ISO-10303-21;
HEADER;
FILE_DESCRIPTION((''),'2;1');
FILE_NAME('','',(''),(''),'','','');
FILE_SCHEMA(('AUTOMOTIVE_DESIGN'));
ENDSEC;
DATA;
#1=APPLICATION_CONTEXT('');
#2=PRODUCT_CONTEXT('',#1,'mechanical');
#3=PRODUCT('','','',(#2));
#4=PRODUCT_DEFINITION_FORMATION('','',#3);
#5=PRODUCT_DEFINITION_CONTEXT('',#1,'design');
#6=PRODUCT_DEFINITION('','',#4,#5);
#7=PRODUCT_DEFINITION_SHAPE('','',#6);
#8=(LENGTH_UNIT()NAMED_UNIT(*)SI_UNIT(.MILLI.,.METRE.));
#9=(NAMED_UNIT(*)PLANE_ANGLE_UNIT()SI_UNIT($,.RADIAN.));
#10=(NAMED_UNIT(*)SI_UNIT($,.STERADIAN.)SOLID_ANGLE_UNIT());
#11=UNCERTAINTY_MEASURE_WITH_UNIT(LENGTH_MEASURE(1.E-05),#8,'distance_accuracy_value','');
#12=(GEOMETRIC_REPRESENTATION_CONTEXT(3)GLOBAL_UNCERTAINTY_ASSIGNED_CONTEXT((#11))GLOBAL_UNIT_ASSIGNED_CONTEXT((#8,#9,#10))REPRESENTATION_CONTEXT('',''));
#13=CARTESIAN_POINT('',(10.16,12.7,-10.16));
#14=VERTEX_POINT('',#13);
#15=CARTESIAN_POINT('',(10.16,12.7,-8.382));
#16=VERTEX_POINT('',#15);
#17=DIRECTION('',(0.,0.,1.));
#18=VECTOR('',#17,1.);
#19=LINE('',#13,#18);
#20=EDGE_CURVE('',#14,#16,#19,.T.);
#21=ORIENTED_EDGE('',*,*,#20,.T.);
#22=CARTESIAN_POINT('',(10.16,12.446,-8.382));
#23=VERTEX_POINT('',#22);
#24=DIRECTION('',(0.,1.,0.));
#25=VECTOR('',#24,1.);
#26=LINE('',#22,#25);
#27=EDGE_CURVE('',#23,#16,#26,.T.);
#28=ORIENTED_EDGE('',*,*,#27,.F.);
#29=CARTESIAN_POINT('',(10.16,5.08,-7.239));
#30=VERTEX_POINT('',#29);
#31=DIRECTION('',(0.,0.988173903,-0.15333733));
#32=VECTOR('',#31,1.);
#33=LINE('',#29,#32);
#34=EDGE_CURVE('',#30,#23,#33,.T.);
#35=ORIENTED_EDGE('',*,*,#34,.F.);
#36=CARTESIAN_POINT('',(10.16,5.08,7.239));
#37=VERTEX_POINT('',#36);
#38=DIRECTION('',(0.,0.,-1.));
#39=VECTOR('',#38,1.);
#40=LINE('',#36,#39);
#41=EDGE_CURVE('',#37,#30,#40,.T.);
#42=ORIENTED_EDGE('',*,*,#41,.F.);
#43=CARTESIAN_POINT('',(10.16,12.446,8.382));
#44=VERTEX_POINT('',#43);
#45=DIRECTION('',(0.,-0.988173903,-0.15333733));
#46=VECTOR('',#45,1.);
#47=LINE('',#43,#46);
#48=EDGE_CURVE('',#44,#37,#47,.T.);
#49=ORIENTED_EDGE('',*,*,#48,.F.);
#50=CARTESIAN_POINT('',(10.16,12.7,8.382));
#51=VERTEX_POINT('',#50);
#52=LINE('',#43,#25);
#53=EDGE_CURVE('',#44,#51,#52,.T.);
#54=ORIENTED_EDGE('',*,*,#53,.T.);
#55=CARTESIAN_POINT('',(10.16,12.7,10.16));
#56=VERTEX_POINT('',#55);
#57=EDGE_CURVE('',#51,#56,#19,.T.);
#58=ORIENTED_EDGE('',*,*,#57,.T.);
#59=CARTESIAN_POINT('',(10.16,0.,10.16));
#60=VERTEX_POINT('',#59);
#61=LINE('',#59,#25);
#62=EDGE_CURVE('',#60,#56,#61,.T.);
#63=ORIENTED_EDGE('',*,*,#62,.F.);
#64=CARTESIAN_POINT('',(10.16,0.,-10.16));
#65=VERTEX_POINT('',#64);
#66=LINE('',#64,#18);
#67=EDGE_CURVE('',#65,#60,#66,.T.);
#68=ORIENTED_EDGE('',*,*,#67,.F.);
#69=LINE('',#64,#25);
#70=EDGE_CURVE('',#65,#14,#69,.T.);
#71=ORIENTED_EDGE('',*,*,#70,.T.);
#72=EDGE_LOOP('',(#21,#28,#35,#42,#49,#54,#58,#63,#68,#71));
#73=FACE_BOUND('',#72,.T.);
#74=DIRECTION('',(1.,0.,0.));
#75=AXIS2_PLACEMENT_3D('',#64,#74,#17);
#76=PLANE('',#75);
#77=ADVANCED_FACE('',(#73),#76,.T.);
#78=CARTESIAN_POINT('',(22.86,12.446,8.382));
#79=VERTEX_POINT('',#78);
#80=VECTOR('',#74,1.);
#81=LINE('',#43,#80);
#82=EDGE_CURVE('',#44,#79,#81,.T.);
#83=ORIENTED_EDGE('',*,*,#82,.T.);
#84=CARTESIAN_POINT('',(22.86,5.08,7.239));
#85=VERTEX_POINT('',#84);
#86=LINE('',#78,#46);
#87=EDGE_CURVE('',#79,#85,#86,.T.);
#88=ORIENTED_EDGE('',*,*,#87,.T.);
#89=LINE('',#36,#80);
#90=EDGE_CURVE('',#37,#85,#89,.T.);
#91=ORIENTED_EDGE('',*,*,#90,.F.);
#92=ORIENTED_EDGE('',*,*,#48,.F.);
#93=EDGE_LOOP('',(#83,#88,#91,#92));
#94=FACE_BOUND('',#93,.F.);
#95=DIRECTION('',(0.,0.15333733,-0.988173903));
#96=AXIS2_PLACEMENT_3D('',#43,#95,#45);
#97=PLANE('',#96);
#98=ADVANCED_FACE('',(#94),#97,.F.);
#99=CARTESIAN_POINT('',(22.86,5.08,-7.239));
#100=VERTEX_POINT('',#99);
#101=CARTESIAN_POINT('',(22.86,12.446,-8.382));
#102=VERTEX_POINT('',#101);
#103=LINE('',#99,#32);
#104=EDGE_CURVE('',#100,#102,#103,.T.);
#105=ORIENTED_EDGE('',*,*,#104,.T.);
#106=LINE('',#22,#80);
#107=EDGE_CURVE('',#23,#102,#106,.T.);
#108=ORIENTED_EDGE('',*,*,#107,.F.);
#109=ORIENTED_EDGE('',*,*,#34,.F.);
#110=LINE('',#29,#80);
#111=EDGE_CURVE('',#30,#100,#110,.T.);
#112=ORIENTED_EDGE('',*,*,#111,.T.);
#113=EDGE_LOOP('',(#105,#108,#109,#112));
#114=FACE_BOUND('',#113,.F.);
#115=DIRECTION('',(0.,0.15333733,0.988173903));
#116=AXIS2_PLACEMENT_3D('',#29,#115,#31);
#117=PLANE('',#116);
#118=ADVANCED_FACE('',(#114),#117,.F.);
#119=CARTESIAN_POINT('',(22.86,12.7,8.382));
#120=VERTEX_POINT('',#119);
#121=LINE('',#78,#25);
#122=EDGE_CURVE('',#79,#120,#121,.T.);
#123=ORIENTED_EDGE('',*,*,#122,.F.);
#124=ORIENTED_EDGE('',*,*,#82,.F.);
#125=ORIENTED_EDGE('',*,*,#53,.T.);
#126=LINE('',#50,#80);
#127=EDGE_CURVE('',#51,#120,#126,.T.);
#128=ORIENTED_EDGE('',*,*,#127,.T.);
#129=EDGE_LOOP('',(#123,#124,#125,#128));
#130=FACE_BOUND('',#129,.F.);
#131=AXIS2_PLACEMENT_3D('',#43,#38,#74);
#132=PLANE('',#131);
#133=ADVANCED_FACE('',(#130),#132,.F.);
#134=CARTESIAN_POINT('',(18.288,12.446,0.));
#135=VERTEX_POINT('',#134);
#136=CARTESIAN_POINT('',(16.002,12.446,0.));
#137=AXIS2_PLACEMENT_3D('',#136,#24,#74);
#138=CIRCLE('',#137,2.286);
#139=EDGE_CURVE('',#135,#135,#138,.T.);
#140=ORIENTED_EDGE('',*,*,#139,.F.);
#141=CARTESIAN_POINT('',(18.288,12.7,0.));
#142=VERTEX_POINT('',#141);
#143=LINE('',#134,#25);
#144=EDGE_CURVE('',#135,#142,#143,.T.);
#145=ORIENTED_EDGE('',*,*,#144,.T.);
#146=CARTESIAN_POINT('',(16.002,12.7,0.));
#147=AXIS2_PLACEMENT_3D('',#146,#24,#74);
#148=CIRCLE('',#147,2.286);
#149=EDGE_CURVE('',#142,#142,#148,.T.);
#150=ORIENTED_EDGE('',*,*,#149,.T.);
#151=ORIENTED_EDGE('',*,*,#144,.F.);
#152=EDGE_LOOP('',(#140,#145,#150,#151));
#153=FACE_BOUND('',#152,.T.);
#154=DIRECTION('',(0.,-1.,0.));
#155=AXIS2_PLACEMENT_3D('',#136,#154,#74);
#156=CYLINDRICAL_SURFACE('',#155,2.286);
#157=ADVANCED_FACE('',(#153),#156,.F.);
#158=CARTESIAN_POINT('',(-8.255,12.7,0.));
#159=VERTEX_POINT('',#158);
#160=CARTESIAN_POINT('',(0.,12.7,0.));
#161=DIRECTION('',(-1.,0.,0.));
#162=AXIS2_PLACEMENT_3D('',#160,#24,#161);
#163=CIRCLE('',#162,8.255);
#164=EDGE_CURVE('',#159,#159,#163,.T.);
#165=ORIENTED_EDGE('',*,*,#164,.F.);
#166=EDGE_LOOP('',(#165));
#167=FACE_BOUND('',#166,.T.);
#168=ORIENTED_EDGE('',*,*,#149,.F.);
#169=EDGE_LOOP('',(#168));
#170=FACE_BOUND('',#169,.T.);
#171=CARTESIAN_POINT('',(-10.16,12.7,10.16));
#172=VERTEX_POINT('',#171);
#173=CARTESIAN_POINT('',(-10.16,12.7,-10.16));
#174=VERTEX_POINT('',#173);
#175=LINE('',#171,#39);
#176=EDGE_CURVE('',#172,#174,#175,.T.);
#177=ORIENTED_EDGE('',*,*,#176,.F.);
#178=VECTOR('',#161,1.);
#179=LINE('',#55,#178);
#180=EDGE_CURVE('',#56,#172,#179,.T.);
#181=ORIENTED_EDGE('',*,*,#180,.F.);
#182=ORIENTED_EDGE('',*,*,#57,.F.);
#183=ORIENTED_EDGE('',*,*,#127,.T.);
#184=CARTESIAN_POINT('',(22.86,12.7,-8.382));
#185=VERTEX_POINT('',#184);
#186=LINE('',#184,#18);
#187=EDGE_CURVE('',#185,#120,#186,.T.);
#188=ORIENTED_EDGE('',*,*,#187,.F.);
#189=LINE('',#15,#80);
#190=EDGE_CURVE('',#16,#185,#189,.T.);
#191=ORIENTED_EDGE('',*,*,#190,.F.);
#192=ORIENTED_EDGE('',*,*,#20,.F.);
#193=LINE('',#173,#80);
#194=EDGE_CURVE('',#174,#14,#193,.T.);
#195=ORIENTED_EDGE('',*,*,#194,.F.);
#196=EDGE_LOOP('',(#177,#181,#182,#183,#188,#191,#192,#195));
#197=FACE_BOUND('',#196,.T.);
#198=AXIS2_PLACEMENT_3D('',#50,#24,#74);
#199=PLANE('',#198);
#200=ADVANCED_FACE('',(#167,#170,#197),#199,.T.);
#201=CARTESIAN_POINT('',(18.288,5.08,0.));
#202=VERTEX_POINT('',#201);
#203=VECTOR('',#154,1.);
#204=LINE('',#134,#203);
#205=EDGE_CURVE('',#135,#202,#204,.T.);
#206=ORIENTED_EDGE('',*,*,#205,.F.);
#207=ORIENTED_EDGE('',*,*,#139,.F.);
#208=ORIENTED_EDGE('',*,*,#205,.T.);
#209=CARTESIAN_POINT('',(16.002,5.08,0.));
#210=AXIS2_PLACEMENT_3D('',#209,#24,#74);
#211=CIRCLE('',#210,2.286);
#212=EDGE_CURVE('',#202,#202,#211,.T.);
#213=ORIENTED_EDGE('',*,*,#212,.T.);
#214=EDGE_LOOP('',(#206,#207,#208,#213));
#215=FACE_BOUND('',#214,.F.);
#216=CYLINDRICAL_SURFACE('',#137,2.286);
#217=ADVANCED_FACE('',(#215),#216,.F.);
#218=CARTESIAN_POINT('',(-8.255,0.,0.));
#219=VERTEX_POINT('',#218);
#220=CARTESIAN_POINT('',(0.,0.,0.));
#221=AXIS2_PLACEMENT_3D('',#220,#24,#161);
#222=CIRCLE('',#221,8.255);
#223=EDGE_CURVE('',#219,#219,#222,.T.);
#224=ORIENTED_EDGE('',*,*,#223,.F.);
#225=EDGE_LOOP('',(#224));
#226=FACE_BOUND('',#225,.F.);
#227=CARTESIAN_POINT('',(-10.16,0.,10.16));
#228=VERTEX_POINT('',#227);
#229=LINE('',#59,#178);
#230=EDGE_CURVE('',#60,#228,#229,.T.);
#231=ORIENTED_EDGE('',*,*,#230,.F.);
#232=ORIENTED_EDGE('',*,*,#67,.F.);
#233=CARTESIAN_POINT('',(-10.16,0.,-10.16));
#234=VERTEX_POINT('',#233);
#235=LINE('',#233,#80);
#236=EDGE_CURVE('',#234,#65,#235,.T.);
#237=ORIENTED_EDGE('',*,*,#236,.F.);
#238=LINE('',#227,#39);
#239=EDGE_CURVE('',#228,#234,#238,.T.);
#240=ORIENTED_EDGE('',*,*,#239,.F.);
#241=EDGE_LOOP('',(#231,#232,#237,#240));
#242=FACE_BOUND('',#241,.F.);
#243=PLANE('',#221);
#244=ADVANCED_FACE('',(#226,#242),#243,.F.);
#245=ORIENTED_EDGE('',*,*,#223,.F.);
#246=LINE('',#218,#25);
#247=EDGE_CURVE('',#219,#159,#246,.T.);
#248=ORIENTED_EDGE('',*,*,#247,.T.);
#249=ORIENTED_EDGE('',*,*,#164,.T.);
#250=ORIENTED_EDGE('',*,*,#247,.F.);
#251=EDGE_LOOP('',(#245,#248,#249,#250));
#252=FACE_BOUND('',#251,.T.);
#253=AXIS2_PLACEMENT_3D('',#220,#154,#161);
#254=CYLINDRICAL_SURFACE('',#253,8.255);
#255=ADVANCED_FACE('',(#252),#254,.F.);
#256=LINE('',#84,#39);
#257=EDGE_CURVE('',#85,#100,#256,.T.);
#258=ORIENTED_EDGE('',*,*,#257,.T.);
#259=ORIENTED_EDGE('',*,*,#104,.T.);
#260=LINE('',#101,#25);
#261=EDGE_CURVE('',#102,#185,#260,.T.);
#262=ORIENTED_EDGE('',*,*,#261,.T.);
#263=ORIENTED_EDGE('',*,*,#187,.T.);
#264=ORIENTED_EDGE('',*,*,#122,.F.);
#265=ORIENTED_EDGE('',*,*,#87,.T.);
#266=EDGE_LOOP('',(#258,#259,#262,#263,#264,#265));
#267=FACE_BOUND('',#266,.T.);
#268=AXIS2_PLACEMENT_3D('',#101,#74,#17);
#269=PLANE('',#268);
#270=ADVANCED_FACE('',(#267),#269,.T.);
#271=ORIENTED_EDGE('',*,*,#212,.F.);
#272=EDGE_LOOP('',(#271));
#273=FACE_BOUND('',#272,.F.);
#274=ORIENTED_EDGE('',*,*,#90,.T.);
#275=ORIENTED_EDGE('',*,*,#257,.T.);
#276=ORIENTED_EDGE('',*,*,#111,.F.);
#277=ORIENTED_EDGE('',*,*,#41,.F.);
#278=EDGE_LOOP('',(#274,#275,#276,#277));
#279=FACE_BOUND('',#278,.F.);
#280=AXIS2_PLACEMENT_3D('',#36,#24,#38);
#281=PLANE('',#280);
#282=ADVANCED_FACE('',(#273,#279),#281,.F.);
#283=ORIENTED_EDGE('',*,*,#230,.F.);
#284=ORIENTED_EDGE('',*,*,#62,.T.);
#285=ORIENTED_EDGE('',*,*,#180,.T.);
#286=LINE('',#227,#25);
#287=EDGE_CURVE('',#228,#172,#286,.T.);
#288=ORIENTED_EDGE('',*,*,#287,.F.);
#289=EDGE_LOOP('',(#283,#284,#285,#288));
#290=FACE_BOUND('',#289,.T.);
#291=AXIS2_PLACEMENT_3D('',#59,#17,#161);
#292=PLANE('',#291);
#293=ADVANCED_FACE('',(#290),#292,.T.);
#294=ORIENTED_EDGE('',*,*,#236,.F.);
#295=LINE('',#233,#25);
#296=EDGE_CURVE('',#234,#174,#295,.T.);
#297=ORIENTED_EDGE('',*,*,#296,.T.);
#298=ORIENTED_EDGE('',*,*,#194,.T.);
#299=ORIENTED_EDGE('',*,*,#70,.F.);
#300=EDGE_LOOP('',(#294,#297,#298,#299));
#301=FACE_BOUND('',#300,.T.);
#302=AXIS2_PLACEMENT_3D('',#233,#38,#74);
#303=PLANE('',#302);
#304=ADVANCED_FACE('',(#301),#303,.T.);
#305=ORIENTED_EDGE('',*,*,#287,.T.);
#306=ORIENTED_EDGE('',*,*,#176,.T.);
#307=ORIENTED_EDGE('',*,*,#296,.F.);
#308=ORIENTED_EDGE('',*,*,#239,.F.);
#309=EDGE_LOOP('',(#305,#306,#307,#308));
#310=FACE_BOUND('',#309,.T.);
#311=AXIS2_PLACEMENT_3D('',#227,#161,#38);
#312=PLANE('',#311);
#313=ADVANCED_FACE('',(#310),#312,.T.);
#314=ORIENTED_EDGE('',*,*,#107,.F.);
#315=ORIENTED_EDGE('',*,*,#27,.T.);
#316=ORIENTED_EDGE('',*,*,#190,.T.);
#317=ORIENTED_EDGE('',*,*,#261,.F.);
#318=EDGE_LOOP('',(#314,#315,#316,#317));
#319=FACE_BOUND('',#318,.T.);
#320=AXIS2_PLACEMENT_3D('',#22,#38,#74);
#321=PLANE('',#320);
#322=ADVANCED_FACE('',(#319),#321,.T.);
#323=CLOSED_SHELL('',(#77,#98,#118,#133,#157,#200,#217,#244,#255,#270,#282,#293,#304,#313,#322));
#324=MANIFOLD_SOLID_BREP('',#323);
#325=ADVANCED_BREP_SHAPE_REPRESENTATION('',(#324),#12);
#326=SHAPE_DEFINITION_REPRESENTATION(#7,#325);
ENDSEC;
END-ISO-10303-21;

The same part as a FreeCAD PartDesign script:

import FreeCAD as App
import Part
import Sketcher
Q = App.Units.Quantity


def add_polygon(sketch, points):
    """Adds a closed chain of lines whose ends are joined by coincident constraints."""
    first, n = sketch.GeometryCount, len(points)
    for a, b in zip(points, points[1:] + points[:1]):
        sketch.addGeometry(Part.LineSegment(App.Vector(*a, 0), App.Vector(*b, 0)), False)
    for i in range(n):
        sketch.addConstraint(Sketcher.Constraint("Coincident", first + i, 2, first + (i + 1) % n, 1))

doc = App.newDocument("Part")
body = doc.addObject("PartDesign::Body", "Body")

sketch1 = body.newObject("Sketcher::SketchObject", "Sketch")
sketch1.AttachmentSupport = (doc.getObject("XZ_Plane"), [""])
sketch1.MapMode = "FlatFace"
add_polygon(sketch1, [(-10, 10), (10, 10), (10, -10), (-10, -10)])
sketch1.addGeometry(Part.Circle(App.Vector(0, 0, 0), App.Vector(0, 0, 1), 8), False)
sketch1.addConstraint([
    Sketcher.Constraint("Horizontal", 0),
    Sketcher.Constraint("Vertical", 1),
    Sketcher.Constraint("Horizontal", 2),
    Sketcher.Constraint("Vertical", 3),
    Sketcher.Constraint("Coincident", 4, 3, -1, 1),
    Sketcher.Constraint("Symmetric", 0, 2, 2, 2, -1, 1),
    Sketcher.Constraint("Equal", 2, 1),
    Sketcher.Constraint("Diameter", 4, Q("0.65 in")),
    Sketcher.Constraint("DistanceX", 0, 1, 0, 2, Q("0.8 in")),
])
pad1 = body.newObject("PartDesign::Pad", "Pad")
pad1.Profile = sketch1
pad1.Length = Q("0.5 in")
pad1.Reversed = True

sketch2 = body.newObject("Sketcher::SketchObject", "Sketch001")
sketch2.AttachmentSupport = (doc.getObject("YZ_Plane"), [""])
sketch2.MapMode = "FlatFace"
sketch2.AttachmentOffset = App.Placement(App.Vector(0, 0, 0.4 * 25.4), App.Rotation())
add_polygon(sketch2, [(12, -8), (12, 8), (5, 7), (5, -7)])
sketch2.addConstraint([
    Sketcher.Constraint("Vertical", 0),
    Sketcher.Constraint("Vertical", 2),
    Sketcher.Constraint("Equal", 1, 3),
    Sketcher.Constraint("DistanceY", 0, 1, 0, 2, Q("0.66 in")),
    Sketcher.Constraint("DistanceY", 2, 2, 2, 1, Q("0.57 in")),
    Sketcher.Constraint("DistanceX", -1, 1, 1, 2, Q("0.2 in")),
    Sketcher.Constraint("DistanceX", 1, 2, 0, 2, Q("0.29 in")),
    Sketcher.Constraint("DistanceY", -1, 1, 0, 2, Q("0.33 in")),
])
pad2 = body.newObject("PartDesign::Pad", "Pad001")
pad2.Profile = sketch2
pad2.Length = Q("0.5 in")

sketch3 = body.newObject("Sketcher::SketchObject", "Sketch002")
sketch3.AttachmentSupport = (doc.getObject("XZ_Plane"), [""])
sketch3.MapMode = "FlatFace"
sketch3.AttachmentOffset = App.Placement(App.Vector(0, 0, -0.49 * 25.4), App.Rotation())
sketch3.addGeometry(Part.Circle(App.Vector(16, 0, 0), App.Vector(0, 0, 1), 2.3), False)
sketch3.addConstraint([
    Sketcher.Constraint("PointOnObject", 0, 3, -1),
    Sketcher.Constraint("Diameter", 0, Q("0.18 in")),
    Sketcher.Constraint("DistanceX", -1, 1, 0, 3, Q("0.63 in")),
])
pocket1 = body.newObject("PartDesign::Pocket", "Pocket")
pocket1.Profile = sketch3
pocket1.Length = Q("0.7 in")
pocket1.Reversed = True

sketch4 = body.newObject("Sketcher::SketchObject", "Sketch003")
sketch4.AttachmentSupport = (doc.getObject("XZ_Plane"), [""])
sketch4.MapMode = "FlatFace"
sketch4.AttachmentOffset = App.Placement(App.Vector(0, 0, -0.49 * 25.4), App.Rotation())
add_polygon(sketch4, [(10.2, -8.4), (10.2, 8.4), (22.9, 8.4), (22.9, -8.4)])
sketch4.addGeometry(Part.Circle(App.Vector(16, 0, 0), App.Vector(0, 0, 1), 2.3), False)
sketch4.addConstraint([
    Sketcher.Constraint("Vertical", 0),
    Sketcher.Constraint("Horizontal", 1),
    Sketcher.Constraint("Vertical", 2),
    Sketcher.Constraint("Horizontal", 3),
    Sketcher.Constraint("PointOnObject", 4, 3, -1),
    Sketcher.Constraint("Diameter", 4, Q("0.18 in")),
    Sketcher.Constraint("DistanceX", 1, 1, 1, 2, Q("0.5 in")),
    Sketcher.Constraint("DistanceY", 0, 1, 0, 2, Q("0.66 in")),
    Sketcher.Constraint("DistanceX", -1, 1, 0, 2, Q("0.4 in")),
    Sketcher.Constraint("DistanceX", -1, 1, 4, 3, Q("0.63 in")),
    Sketcher.Constraint("DistanceY", -1, 1, 0, 2, Q("0.33 in")),
])
pad3 = body.newObject("PartDesign::Pad", "Pad002")
pad3.Profile = sketch4
pad3.Length = Q("0.01 in")
pad3.Reversed = True

doc.recompute()
